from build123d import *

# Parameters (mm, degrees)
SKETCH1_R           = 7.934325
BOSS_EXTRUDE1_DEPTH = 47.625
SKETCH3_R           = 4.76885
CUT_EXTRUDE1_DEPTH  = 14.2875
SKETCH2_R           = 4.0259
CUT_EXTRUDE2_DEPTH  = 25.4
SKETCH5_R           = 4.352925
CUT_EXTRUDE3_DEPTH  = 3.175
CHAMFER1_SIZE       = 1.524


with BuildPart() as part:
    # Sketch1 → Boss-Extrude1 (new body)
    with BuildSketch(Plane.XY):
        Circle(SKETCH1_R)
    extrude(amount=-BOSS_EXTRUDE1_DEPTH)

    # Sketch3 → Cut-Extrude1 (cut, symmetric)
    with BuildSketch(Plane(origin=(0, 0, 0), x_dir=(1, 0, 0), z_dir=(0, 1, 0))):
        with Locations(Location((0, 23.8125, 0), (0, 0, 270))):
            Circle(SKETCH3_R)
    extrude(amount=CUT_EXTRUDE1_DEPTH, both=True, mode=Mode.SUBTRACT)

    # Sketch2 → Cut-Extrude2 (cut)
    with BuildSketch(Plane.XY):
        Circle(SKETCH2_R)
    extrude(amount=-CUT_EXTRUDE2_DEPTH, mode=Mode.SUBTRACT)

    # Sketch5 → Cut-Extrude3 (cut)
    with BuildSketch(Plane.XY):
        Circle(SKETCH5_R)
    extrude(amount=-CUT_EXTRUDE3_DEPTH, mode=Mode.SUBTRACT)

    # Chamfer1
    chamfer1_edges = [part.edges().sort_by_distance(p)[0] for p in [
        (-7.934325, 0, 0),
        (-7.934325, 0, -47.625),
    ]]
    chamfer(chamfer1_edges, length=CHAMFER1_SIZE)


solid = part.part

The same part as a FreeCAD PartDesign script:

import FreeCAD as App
import Part
import Sketcher

V = App.Vector
Q = App.Units.Quantity


def edges_at(feature, points):
    """Names of the edges that pass closest to the given points."""
    edges = feature.Shape.Edges
    near = lambda p: min(range(len(edges)), key=lambda i: edges[i].distToShape(Part.Vertex(*p))[0])
    return sorted({f"Edge{near(p) + 1}" for p in points})

doc = App.newDocument("Part")
body = doc.addObject("PartDesign::Body", "Body")

# Sketch on XY plane
sketch1 = doc.addObject("Sketcher::SketchObject", "Sketch")
body.addObject(sketch1)
sketch1.AttachmentSupport = (doc.XY_Plane, [""])
sketch1.MapMode = "FlatFace"
sketch1.addGeometry(Part.Circle(V(0, 0, 0), V(0, 0, 1), 7.934325), False)
sketch1.addConstraint([
    Sketcher.Constraint("Coincident", 0, 3, -1, 1),
    Sketcher.Constraint("Diameter", 0, Q("15.86865 mm")),
])
pad1 = doc.addObject("PartDesign::Pad", "Pad")
body.addObject(pad1)
pad1.Profile = sketch1
pad1.Length = Q("1.875 in")
pad1.Reversed = True

# Sketch on XZ plane
sketch2 = doc.addObject("Sketcher::SketchObject", "Sketch001")
body.addObject(sketch2)
sketch2.AttachmentSupport = (doc.XZ_Plane, [""])
sketch2.MapMode = "FlatFace"
sketch2.addGeometry(Part.Circle(V(0, -23.8125, 0), V(0, 0, 1), 4.76885), False)
sketch2.addConstraint([
    Sketcher.Constraint("PointOnObject", 0, 3, -2),
    Sketcher.Constraint("Diameter", 0, Q("0.3755 in")),
    Sketcher.Constraint("DistanceY", 0, 3, -1, 1, Q("0.9375 in")),
])
pocket1 = doc.addObject("PartDesign::Pocket", "Pocket")
body.addObject(pocket1)
pocket1.Profile = sketch2
pocket1.Length = Q("1.125 in")
pocket1.Midplane = True

# Sketch on XY plane
sketch3 = doc.addObject("Sketcher::SketchObject", "Sketch002")
body.addObject(sketch3)
sketch3.AttachmentSupport = (doc.XY_Plane, [""])
sketch3.MapMode = "FlatFace"
sketch3.addGeometry(Part.Circle(V(0, 0, 0), V(0, 0, 1), 4.0259), False)
sketch3.addConstraint([
    Sketcher.Constraint("Coincident", 0, 3, -1, 1),
    Sketcher.Constraint("Diameter", 0, Q("0.317 in")),
])
pocket2 = doc.addObject("PartDesign::Pocket", "Pocket001")
body.addObject(pocket2)
pocket2.Profile = sketch3
pocket2.Length = Q("1 in")

# Sketch on XY plane
sketch4 = doc.addObject("Sketcher::SketchObject", "Sketch003")
body.addObject(sketch4)
sketch4.AttachmentSupport = (doc.XY_Plane, [""])
sketch4.MapMode = "FlatFace"
sketch4.addGeometry(Part.Circle(V(0, 0, 0), V(0, 0, 1), 4.352925), False)
sketch4.addConstraint([
    Sketcher.Constraint("Coincident", 0, 3, -1, 1),
    Sketcher.Constraint("Diameter", 0, Q("8.70585 mm")),
])
pocket3 = doc.addObject("PartDesign::Pocket", "Pocket002")
body.addObject(pocket3)
pocket3.Profile = sketch4
pocket3.Length = Q("0.125 in")
doc.recompute()

chamfer = doc.addObject("PartDesign::Chamfer", "Chamfer")
body.addObject(chamfer)
chamfer.Base = (pocket3, edges_at(pocket3, [(-7.934, 0, 0), (-7.934, 0, -47.625)]))
chamfer.Size = Q("0.06 in")

doc.recompute()
